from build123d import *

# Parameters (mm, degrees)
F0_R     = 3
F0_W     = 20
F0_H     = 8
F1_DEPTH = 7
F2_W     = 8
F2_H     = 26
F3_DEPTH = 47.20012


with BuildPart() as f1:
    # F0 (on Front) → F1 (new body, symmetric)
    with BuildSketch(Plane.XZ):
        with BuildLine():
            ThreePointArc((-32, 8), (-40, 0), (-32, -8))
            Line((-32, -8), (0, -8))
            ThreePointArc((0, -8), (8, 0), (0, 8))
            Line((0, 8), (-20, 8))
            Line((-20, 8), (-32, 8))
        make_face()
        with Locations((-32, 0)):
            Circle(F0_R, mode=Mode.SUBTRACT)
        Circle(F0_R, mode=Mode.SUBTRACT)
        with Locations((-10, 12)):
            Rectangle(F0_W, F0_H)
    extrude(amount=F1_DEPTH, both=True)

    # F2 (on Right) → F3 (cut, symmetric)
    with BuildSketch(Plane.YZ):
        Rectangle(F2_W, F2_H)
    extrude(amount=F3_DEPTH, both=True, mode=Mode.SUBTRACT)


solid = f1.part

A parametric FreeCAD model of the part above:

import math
import FreeCAD as App
import Part
import Sketcher


def add_polygon(sketch, points):
    """Adds a closed chain of lines whose ends are joined by coincident constraints."""
    first, n = sketch.GeometryCount, len(points)
    for a, b in zip(points, points[1:] + points[:1]):
        sketch.addGeometry(Part.LineSegment(App.Vector(*a, 0), App.Vector(*b, 0)), False)
    for i in range(n):
        sketch.addConstraint(Sketcher.Constraint("Coincident", first + i, 2, first + (i + 1) % n, 1))

doc = App.newDocument("Part")
body = doc.addObject("PartDesign::Body", "Body")

# Sketch on XZ plane
sketch1 = doc.addObject("Sketcher::SketchObject", "Sketch")
body.addObject(sketch1)
sketch1.AttachmentSupport = (doc.XZ_Plane, [""])
sketch1.MapMode = "FlatFace"
sketch1.addGeometry(Part.ArcOfCircle(Part.Circle(App.Vector(-32, 0, 0), App.Vector(0, 0, 1), 8), math.radians(90), math.radians(270)), False)
sketch1.addGeometry(Part.LineSegment(App.Vector(-32, -8, 0), App.Vector(0, -8, 0)), False)
sketch1.addGeometry(Part.ArcOfCircle(Part.Circle(App.Vector(0, 0, 0), App.Vector(0, 0, 1), 8), math.radians(-90), math.radians(90)), False)
sketch1.addGeometry(Part.LineSegment(App.Vector(0, 8, 0), App.Vector(0, 16, 0)), False)
sketch1.addGeometry(Part.LineSegment(App.Vector(0, 16, 0), App.Vector(-20, 16, 0)), False)
sketch1.addGeometry(Part.LineSegment(App.Vector(-20, 16, 0), App.Vector(-20, 8, 0)), False)
sketch1.addGeometry(Part.LineSegment(App.Vector(-20, 8, 0), App.Vector(-32, 8, 0)), False)
sketch1.addGeometry(Part.Circle(App.Vector(-32, 0, 0), App.Vector(0, 0, 1), 3), False)
sketch1.addGeometry(Part.Circle(App.Vector(0, 0, 0), App.Vector(0, 0, 1), 3), False)
sketch1.addConstraint(Sketcher.Constraint("Tangent", 0, 2, 1, 1))
sketch1.addConstraint(Sketcher.Constraint("Tangent", 1, 2, 2, 1))
sketch1.addConstraint(Sketcher.Constraint("Coincident", 2, 2, 3, 1))
sketch1.addConstraint(Sketcher.Constraint("Coincident", 3, 2, 4, 1))
sketch1.addConstraint(Sketcher.Constraint("Coincident", 4, 2, 5, 1))
sketch1.addConstraint(Sketcher.Constraint("Coincident", 5, 2, 6, 1))
sketch1.addConstraint(Sketcher.Constraint("Tangent", 6, 2, 0, 1))
sketch1.addConstraint(Sketcher.Constraint("Horizontal", 1))
sketch1.addConstraint(Sketcher.Constraint("Vertical", 3))
sketch1.addConstraint(Sketcher.Constraint("Horizontal", 4))
sketch1.addConstraint(Sketcher.Constraint("Vertical", 5))
sketch1.addConstraint(Sketcher.Constraint("Horizontal", 6))
sketch1.addConstraint(Sketcher.Constraint("Coincident", 2, 3, -1, 1))
sketch1.addConstraint(Sketcher.Constraint("Coincident", 8, 3, -1, 1))
sketch1.addConstraint(Sketcher.Constraint("Coincident", 7, 3, 0, 3))
sketch1.addConstraint(Sketcher.Constraint("Equal", 0, 2))
sketch1.addConstraint(Sketcher.Constraint("Equal", 7, 8))
sketch1.addConstraint(Sketcher.Constraint("PointOnObject", 2, 2, -2))
sketch1.addConstraint(Sketcher.Constraint("Diameter", 7, 6.0))
sketch1.addConstraint(Sketcher.Constraint("Radius", 0, 8.0))
sketch1.addConstraint(Sketcher.Constraint("DistanceX", 1, 1, 1, 2, 32.0))
sketch1.addConstraint(Sketcher.Constraint("DistanceX", 4, 2, 4, 1, 20.0))
sketch1.addConstraint(Sketcher.Constraint("DistanceY", 3, 1, 3, 2, 8.0))
pad1 = doc.addObject("PartDesign::Pad", "Pad")
body.addObject(pad1)
pad1.Profile = sketch1
pad1.Length = 14
pad1.Midplane = True

# Sketch on YZ plane
sketch2 = doc.addObject("Sketcher::SketchObject", "Sketch001")
body.addObject(sketch2)
sketch2.AttachmentSupport = (doc.YZ_Plane, [""])
sketch2.MapMode = "FlatFace"
add_polygon(sketch2, [(-4, 13), (-4, -13), (4, -13), (4, 13)])  # lines 0-3
sketch2.addConstraint(Sketcher.Constraint("Vertical", 0))
sketch2.addConstraint(Sketcher.Constraint("Horizontal", 1))
sketch2.addConstraint(Sketcher.Constraint("Vertical", 2))
sketch2.addConstraint(Sketcher.Constraint("Horizontal", 3))
sketch2.addConstraint(Sketcher.Constraint("Symmetric", 0, 2, 2, 2, -1, 1))
sketch2.addConstraint(Sketcher.Constraint("DistanceX", 1, 1, 1, 2, 8.0))
sketch2.addConstraint(Sketcher.Constraint("DistanceY", 0, 2, 0, 1, 26.0))
pocket1 = doc.addObject("PartDesign::Pocket", "Pocket")
body.addObject(pocket1)
pocket1.Profile = sketch2
pocket1.Length = 94.40024
pocket1.Midplane = True

doc.recompute()
